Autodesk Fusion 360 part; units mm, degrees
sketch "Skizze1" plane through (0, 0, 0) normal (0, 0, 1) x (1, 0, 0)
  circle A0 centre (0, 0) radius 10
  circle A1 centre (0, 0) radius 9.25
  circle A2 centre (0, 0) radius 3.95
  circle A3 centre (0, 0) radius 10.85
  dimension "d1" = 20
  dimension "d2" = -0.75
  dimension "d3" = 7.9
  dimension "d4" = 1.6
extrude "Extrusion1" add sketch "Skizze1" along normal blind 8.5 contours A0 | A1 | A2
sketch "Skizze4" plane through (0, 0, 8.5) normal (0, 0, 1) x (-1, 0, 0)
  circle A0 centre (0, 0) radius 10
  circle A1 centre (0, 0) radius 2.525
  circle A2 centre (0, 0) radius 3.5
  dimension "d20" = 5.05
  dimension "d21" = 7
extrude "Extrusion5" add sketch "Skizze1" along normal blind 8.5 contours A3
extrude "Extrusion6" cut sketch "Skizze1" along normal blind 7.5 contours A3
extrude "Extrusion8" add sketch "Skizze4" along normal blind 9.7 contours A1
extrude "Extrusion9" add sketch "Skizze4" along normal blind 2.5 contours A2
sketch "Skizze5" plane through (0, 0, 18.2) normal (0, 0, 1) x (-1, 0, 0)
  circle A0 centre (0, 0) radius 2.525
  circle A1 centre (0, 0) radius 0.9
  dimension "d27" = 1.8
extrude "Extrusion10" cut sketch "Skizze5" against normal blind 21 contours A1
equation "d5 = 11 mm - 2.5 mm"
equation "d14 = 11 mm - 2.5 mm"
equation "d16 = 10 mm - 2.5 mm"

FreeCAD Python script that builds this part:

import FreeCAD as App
import Part
import Sketcher
Q = App.Units.Quantity

doc = App.newDocument("Part")
body = doc.addObject("PartDesign::Body", "Body")

sketch1 = doc.addObject("Sketcher::SketchObject", "Sketch")
body.addObject(sketch1)
sketch1.AttachmentSupport = (doc.XY_Plane, [""])
sketch1.MapMode = "FlatFace"
sketch1.addGeometry(Part.Circle(App.Vector(0, 0, 0), App.Vector(0, 0, 1), 10), False)
sketch1.addConstraint(Sketcher.Constraint("Coincident", 0, 3, -1, 1))
sketch1.addConstraint(Sketcher.Constraint("Diameter", 0, Q("20 mm")))
pad1 = doc.addObject("PartDesign::Pad", "Pad")
body.addObject(pad1)
pad1.Profile = sketch1
pad1.Length = 8.5

sketch2 = doc.addObject("Sketcher::SketchObject", "Sketch001")
body.addObject(sketch2)
sketch2.AttachmentSupport = (doc.XY_Plane, [""])
sketch2.MapMode = "FlatFace"
sketch2.addGeometry(Part.Circle(App.Vector(0, 0, 0), App.Vector(0, 0, 1), 10.85), False)
sketch2.addGeometry(Part.Circle(App.Vector(0, 0, 0), App.Vector(0, 0, 1), 10), False)
sketch2.addConstraint(Sketcher.Constraint("Coincident", 0, 3, -1, 1))
sketch2.addConstraint(Sketcher.Constraint("Coincident", 1, 3, -1, 1))
sketch2.addConstraint(Sketcher.Constraint("Diameter", 1, Q("20 mm")))
sketch2.addConstraint(Sketcher.Constraint("Diameter", 0, Q("21.7 mm")))
pad2 = doc.addObject("PartDesign::Pad", "Pad001")
body.addObject(pad2)
pad2.Profile = sketch2
pad2.Length = 8.5

sketch3 = doc.addObject("Sketcher::SketchObject", "Sketch002")
body.addObject(sketch3)
sketch3.AttachmentSupport = (doc.XY_Plane, [""])
sketch3.MapMode = "FlatFace"
sketch3.addGeometry(Part.Circle(App.Vector(0, 0, 0), App.Vector(0, 0, 1), 10.85), False)
sketch3.addGeometry(Part.Circle(App.Vector(0, 0, 0), App.Vector(0, 0, 1), 10), False)
sketch3.addConstraint(Sketcher.Constraint("Coincident", 0, 3, -1, 1))
sketch3.addConstraint(Sketcher.Constraint("Coincident", 1, 3, -1, 1))
sketch3.addConstraint(Sketcher.Constraint("Diameter", 1, Q("20 mm")))
sketch3.addConstraint(Sketcher.Constraint("Diameter", 0, Q("21.7 mm")))
pocket1 = doc.addObject("PartDesign::Pocket", "Pocket")
body.addObject(pocket1)
pocket1.Profile = sketch3
pocket1.Length = 7.5
pocket1.Reversed = True

sketch4 = doc.addObject("Sketcher::SketchObject", "Sketch003")
body.addObject(sketch4)
sketch4.AttachmentSupport = (doc.XY_Plane, [""])
sketch4.MapMode = "FlatFace"
sketch4.AttachmentOffset = App.Placement(App.Vector(0, 0, 8.5), App.Rotation())
sketch4.addGeometry(Part.Circle(App.Vector(0, 0, 0), App.Vector(0, 0, 1), 2.525), False)
sketch4.addConstraint(Sketcher.Constraint("Coincident", 0, 3, -1, 1))
sketch4.addConstraint(Sketcher.Constraint("Diameter", 0, Q("5.05 mm")))
pad3 = doc.addObject("PartDesign::Pad", "Pad002")
body.addObject(pad3)
pad3.Profile = sketch4
pad3.Length = 9.7

sketch5 = doc.addObject("Sketcher::SketchObject", "Sketch004")
body.addObject(sketch5)
sketch5.AttachmentSupport = (doc.XY_Plane, [""])
sketch5.MapMode = "FlatFace"
sketch5.AttachmentOffset = App.Placement(App.Vector(0, 0, 8.5), App.Rotation())
sketch5.addGeometry(Part.Circle(App.Vector(0, 0, 0), App.Vector(0, 0, 1), 3.5), False)
sketch5.addGeometry(Part.Circle(App.Vector(0, 0, 0), App.Vector(0, 0, 1), 2.525), False)
sketch5.addConstraint(Sketcher.Constraint("Coincident", 0, 3, -1, 1))
sketch5.addConstraint(Sketcher.Constraint("Coincident", 1, 3, -1, 1))
sketch5.addConstraint(Sketcher.Constraint("Diameter", 0, Q("7 mm")))
sketch5.addConstraint(Sketcher.Constraint("Diameter", 1, Q("5.05 mm")))
pad4 = doc.addObject("PartDesign::Pad", "Pad003")
body.addObject(pad4)
pad4.Profile = sketch5
pad4.Length = 2.5

sketch6 = doc.addObject("Sketcher::SketchObject", "Sketch005")
body.addObject(sketch6)
sketch6.AttachmentSupport = (doc.XY_Plane, [""])
sketch6.MapMode = "FlatFace"
sketch6.AttachmentOffset = App.Placement(App.Vector(0, 0, 18.2), App.Rotation())
sketch6.addGeometry(Part.Circle(App.Vector(0, 0, 0), App.Vector(0, 0, 1), 0.9), False)
sketch6.addConstraint(Sketcher.Constraint("Coincident", 0, 3, -1, 1))
sketch6.addConstraint(Sketcher.Constraint("Diameter", 0, Q("1.8 mm")))
pocket2 = doc.addObject("PartDesign::Pocket", "Pocket001")
body.addObject(pocket2)
pocket2.Profile = sketch6
pocket2.Length = 21

doc.recompute()
